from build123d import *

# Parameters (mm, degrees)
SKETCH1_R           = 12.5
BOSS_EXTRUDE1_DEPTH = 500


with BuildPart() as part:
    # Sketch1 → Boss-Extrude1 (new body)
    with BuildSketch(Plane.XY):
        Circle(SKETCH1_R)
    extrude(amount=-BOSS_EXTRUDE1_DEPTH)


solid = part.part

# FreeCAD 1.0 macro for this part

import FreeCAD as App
import Part
import Sketcher

V = App.Vector

doc = App.newDocument("Part")
body = doc.addObject("PartDesign::Body", "Body")

# Sketch on XY plane
sketch1 = body.newObject("Sketcher::SketchObject", "Sketch")
sketch1.AttachmentSupport = (doc.getObject("XY_Plane"), [""])
sketch1.MapMode = "FlatFace"
sketch1.addGeometry(Part.Circle(V(0, 0, 0), V(0, 0, 1), 12), False)
sketch1.addConstraint(Sketcher.Constraint("Coincident", 0, 3, -1, 1))
sketch1.addConstraint(Sketcher.Constraint("Diameter", 0, 25.0))
pad1 = body.newObject("PartDesign::Pad", "Pad")
pad1.Profile = sketch1
pad1.Length = 500
pad1.Reversed = True

doc.recompute()
